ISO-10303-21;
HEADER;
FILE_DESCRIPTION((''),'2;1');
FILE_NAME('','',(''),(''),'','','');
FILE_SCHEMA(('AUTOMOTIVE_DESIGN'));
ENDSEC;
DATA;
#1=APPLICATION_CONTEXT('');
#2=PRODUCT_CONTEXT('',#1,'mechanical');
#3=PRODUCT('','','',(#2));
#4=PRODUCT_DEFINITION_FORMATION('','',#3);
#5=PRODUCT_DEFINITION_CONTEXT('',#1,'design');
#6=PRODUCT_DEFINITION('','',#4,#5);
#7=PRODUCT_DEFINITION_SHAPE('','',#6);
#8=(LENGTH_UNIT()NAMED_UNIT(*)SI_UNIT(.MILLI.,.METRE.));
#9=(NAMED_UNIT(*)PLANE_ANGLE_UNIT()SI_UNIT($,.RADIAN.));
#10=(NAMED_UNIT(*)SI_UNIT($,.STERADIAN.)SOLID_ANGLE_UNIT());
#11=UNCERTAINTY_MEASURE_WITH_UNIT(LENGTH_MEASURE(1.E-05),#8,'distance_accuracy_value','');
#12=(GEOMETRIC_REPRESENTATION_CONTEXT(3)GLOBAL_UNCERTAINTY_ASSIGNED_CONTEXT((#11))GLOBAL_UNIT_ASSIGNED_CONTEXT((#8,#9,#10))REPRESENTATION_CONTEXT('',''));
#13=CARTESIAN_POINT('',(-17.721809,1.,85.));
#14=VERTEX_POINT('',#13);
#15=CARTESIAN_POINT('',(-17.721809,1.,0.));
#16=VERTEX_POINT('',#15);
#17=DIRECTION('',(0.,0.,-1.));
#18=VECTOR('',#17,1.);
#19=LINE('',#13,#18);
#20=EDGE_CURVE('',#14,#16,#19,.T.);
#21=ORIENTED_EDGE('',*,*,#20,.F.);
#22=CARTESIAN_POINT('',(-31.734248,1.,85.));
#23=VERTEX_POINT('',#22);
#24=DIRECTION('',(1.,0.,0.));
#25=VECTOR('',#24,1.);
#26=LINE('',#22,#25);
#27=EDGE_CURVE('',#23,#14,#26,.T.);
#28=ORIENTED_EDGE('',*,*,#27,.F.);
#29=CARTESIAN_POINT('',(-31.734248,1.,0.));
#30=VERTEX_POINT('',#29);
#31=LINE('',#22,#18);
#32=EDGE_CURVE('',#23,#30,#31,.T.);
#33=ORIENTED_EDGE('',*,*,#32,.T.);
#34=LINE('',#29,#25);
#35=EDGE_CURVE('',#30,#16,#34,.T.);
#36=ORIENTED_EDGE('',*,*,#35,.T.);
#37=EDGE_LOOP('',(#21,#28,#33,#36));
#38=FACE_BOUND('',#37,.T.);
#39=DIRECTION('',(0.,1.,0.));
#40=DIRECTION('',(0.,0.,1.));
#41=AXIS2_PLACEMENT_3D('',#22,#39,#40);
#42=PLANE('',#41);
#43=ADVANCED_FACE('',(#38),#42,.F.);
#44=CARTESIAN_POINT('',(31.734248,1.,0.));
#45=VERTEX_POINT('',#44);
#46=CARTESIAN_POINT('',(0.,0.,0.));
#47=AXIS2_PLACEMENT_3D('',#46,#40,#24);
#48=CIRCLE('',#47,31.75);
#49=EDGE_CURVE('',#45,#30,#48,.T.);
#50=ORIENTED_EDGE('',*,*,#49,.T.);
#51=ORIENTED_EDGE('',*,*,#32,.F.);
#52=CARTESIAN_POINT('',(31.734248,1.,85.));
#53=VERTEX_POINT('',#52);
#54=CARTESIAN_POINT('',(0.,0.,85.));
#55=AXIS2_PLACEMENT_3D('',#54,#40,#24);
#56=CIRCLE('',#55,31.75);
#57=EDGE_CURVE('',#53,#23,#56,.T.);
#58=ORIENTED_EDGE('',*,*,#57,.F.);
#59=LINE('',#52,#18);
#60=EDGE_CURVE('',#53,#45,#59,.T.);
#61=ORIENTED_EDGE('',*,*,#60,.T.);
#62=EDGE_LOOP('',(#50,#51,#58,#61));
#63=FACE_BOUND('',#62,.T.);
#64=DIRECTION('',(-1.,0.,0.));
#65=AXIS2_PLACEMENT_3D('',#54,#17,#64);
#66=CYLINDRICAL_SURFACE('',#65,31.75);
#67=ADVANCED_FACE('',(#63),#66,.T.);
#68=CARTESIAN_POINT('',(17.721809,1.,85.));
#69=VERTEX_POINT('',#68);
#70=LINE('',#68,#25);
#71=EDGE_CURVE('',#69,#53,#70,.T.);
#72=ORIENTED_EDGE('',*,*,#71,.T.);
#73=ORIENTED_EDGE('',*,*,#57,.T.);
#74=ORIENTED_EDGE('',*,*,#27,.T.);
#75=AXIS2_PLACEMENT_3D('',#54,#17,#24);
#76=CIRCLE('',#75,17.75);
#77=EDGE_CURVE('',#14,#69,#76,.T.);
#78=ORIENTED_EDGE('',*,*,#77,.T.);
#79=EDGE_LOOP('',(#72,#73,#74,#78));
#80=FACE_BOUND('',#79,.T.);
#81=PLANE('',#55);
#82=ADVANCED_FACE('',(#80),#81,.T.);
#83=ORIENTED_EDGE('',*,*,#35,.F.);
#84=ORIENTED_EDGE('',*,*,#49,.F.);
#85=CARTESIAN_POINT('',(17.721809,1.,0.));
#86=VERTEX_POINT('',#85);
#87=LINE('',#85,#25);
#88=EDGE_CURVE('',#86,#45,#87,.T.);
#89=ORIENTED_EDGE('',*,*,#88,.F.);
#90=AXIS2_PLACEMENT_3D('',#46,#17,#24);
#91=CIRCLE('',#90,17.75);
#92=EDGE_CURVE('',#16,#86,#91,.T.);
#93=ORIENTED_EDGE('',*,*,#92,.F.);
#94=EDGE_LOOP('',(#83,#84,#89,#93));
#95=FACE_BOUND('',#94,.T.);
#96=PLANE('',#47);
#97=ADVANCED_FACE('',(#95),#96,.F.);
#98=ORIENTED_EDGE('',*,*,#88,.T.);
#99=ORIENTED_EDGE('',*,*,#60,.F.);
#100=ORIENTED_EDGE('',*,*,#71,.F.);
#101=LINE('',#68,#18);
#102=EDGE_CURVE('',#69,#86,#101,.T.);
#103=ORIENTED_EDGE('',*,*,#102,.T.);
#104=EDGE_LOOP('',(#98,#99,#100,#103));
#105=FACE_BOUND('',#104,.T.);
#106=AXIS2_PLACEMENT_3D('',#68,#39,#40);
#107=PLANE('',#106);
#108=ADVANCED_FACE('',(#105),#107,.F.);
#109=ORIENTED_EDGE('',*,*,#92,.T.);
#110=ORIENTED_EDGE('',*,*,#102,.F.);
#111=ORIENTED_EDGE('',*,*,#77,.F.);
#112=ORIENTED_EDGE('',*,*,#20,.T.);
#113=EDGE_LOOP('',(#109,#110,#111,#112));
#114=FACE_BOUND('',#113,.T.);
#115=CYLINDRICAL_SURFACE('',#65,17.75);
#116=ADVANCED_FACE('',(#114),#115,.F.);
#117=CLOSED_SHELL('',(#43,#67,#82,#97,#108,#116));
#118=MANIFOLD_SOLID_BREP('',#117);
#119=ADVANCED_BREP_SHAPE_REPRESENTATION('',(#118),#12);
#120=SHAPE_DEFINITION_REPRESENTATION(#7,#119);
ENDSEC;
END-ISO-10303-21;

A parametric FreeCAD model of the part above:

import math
import FreeCAD as App
import Part
import Sketcher
from FreeCAD import Vector
Q = App.Units.Quantity

doc = App.newDocument("Part")
body = doc.addObject("PartDesign::Body", "Body")

# Sketch on XY plane
sketch1 = body.newObject("Sketcher::SketchObject", "Sketch")
sketch1.AttachmentSupport = (doc.getObject("XY_Plane"), [""])
sketch1.MapMode = "FlatFace"
sketch1.addGeometry([
    Part.LineSegment(Vector(-32, 1, 0), Vector(-18, 1, 0)),
    Part.ArcOfCircle(Part.Circle(Vector(0, 0, 0), Vector(0, 0, 1), 18), math.radians(3), math.radians(177)),
    Part.LineSegment(Vector(18, 1, 0), Vector(32, 1, 0)),
    Part.ArcOfCircle(Part.Circle(Vector(0, 0, 0), Vector(0, 0, 1), 32), math.radians(2), math.radians(178)),
], False)
sketch1.addConstraint([
    Sketcher.Constraint("Coincident", 0, 2, 1, 2),
    Sketcher.Constraint("Coincident", 1, 1, 2, 1),
    Sketcher.Constraint("Coincident", 2, 2, 3, 1),
    Sketcher.Constraint("Coincident", 3, 2, 0, 1),
    Sketcher.Constraint("Horizontal", 0),
    Sketcher.Constraint("Horizontal", 2),
    Sketcher.Constraint("Coincident", 1, 3, -1, 1),
    Sketcher.Constraint("Coincident", 3, 3, -1, 1),
    Sketcher.Constraint("Horizontal", 0, 2, 1, 1),
    Sketcher.Constraint("Radius", 1, Q("17.75 mm")),
    Sketcher.Constraint("Radius", 3, Q("31.75 mm")),
    Sketcher.Constraint("DistanceY", -1, 1, 0, 2, Q("1 mm")),
])
pad1 = body.newObject("PartDesign::Pad", "Pad")
pad1.Profile = sketch1
pad1.Length = 85

doc.recompute()
